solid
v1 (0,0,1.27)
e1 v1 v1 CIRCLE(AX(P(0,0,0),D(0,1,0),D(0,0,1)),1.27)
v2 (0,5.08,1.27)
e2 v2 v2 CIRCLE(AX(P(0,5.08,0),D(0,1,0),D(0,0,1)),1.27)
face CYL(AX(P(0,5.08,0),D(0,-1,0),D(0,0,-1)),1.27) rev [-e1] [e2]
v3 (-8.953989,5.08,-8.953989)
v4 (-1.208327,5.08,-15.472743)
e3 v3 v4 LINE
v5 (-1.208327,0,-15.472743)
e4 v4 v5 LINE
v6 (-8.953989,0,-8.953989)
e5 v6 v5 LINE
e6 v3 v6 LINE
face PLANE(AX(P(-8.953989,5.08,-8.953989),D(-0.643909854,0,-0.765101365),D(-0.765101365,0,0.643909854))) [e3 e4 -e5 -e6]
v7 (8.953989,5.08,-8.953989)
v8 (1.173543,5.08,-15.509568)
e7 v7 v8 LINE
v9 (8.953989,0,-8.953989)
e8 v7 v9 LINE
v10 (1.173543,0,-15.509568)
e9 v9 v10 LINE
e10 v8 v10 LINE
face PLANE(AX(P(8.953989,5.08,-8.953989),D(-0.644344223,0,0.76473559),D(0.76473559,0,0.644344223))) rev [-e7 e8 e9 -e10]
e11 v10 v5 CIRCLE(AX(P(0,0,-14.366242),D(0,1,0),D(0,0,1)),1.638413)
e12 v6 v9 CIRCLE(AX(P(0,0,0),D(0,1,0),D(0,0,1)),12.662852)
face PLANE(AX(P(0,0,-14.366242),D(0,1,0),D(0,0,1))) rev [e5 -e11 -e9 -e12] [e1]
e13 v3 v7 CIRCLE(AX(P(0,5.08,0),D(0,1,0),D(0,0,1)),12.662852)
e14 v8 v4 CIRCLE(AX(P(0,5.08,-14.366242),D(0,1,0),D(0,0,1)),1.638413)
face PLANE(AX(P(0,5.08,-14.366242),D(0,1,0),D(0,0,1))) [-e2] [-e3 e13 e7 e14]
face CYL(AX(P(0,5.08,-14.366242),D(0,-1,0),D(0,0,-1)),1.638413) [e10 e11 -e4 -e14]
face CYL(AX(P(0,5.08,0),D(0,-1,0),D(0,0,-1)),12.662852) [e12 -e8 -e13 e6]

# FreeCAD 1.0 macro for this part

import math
import FreeCAD as App
import Part
import Sketcher
from FreeCAD import Vector
Q = App.Units.Quantity

doc = App.newDocument("Part")
params = doc.addObject("Spreadsheet::Sheet", "Params")
for row, (alias, value) in enumerate([
    ("sketch1_diameter", "0.1 in"),
    ("pad1_length", "0.2 in"),
], start=1):
    params.set(f"A{row}", alias)
    params.set(f"B{row}", "=" + value)
    params.setAlias(f"B{row}", alias)

body = doc.addObject("PartDesign::Body", "Body")

sketch1 = body.newObject("Sketcher::SketchObject", "Sketch")
sketch1.AttachmentSupport = (doc.getObject("XZ_Plane"), [""])
sketch1.MapMode = "FlatFace"
sketch1.addGeometry([
    Part.LineSegment(Vector(-1.2, -15.5, 0), Vector(-9, -9, 0)),
    Part.ArcOfCircle(Part.Circle(Vector(0, 0, 0), Vector(0, 0, 1), 12.7), math.radians(-45), math.radians(225)),
    Part.LineSegment(Vector(9, -9, 0), Vector(1.2, -15.5, 0)),
    Part.ArcOfCircle(Part.Circle(Vector(0, -14.4, 0), Vector(0, 0, 1), 1.6), math.radians(-138), math.radians(-44)),
    Part.Circle(Vector(0, 0, 0), Vector(0, 0, 1), 1.3),
], False)
sketch1.addConstraint([
    Sketcher.Constraint("Coincident", 0, 2, 1, 2),
    Sketcher.Constraint("Coincident", 1, 1, 2, 1),
    Sketcher.Constraint("Coincident", 2, 2, 3, 2),
    Sketcher.Constraint("Coincident", 3, 1, 0, 1),
    Sketcher.Constraint("Coincident", 1, 3, -1, 1),
    Sketcher.Constraint("Coincident", 4, 3, -1, 1),
    Sketcher.Constraint("PointOnObject", 3, 3, -2),
    Sketcher.Constraint("Horizontal", 0, 2, 1, 1),
    Sketcher.Constraint("Diameter", 4, Q("0.1 in")),
    Sketcher.Constraint("DistanceY", 3, 3, -1, 1, Q("0.5656001 in")),
    Sketcher.Constraint("Radius", 1, Q("12.662852 mm")),
    Sketcher.Constraint("Radius", 3, Q("1.638413 mm")),
    Sketcher.Constraint("DistanceY", 3, 1, 3, 3, Q("1.106501 mm")),
    Sketcher.Constraint("DistanceX", 0, 2, -1, 1, Q("8.953989 mm")),
    Sketcher.Constraint("DistanceY", 2, 2, -1, 1, Q("15.509568 mm")),
])
sketch1.setExpression("Constraints[8]", "Params.sketch1_diameter")
pad1 = body.newObject("PartDesign::Pad", "Pad")
pad1.Profile = sketch1
pad1.setExpression("Length", "Params.pad1_length")
pad1.Reversed = True

doc.recompute()
